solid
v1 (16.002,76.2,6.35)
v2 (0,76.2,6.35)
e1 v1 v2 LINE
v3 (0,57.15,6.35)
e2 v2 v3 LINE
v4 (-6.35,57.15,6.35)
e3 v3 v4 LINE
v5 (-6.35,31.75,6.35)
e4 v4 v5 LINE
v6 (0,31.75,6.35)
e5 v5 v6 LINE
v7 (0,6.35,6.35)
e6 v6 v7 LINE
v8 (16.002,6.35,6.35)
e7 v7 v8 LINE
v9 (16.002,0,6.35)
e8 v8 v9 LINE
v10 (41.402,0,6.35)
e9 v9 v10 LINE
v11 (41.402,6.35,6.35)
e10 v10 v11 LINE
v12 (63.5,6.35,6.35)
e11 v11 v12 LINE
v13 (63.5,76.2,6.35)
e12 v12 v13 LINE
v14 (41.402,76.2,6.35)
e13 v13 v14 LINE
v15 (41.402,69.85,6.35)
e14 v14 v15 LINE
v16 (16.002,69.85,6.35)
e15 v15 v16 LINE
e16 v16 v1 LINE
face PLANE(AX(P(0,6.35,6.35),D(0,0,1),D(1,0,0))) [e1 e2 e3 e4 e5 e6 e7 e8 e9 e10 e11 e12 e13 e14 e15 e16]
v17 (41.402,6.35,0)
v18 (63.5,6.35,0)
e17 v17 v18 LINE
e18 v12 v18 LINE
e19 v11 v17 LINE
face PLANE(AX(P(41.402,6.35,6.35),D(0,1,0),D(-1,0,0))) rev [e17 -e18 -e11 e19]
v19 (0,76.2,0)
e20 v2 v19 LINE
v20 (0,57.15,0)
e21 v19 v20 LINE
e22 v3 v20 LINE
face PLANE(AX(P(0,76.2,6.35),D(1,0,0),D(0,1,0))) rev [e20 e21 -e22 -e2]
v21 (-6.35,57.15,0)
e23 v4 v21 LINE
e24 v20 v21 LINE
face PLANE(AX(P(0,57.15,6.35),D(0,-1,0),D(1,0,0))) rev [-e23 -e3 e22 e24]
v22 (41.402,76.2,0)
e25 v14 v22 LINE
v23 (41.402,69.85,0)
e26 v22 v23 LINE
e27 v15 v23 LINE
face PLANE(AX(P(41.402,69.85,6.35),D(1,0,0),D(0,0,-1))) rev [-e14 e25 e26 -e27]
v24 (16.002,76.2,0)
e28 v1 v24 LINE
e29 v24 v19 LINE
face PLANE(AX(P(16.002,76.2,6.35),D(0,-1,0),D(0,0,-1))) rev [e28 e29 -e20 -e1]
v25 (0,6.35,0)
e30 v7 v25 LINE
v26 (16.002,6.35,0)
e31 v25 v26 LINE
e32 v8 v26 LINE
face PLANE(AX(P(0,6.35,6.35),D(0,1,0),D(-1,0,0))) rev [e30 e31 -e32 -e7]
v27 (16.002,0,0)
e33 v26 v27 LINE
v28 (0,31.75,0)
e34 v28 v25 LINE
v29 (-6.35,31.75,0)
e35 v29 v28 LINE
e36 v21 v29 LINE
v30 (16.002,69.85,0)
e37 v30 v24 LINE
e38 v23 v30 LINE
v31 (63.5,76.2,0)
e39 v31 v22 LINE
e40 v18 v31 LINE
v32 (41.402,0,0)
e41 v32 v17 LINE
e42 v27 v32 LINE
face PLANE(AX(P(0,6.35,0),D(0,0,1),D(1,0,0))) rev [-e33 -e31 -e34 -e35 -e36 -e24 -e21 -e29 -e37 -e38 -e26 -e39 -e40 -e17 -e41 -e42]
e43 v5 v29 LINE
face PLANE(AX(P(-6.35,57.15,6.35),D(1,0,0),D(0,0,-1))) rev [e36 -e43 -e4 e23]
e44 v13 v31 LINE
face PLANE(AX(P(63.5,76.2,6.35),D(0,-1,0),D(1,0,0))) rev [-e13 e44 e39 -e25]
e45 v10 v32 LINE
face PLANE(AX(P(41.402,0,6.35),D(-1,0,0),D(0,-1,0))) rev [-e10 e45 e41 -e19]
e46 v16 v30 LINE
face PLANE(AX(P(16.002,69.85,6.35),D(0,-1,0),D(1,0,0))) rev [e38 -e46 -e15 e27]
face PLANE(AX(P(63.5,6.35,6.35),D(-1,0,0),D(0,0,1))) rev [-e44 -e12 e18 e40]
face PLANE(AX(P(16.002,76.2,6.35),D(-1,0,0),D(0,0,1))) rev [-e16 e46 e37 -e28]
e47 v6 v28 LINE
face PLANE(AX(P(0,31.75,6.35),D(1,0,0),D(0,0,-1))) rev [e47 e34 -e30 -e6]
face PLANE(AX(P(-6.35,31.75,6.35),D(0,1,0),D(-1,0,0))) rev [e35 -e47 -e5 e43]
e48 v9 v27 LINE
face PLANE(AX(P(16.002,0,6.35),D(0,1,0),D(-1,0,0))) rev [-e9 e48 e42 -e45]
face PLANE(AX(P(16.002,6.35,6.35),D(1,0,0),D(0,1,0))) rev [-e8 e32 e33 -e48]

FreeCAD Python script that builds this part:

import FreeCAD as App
import Part
import Sketcher
Q = App.Units.Quantity

doc = App.newDocument("Part")
body = doc.addObject("PartDesign::Body", "Body")

sketch1 = body.newObject("Sketcher::SketchObject", "Sketch")
sketch1.AttachmentSupport = (doc.getObject("XY_Plane"), [""])
sketch1.MapMode = "FlatFace"
sketch1.addGeometry(Part.LineSegment(App.Vector(0, 6, 0), App.Vector(16, 6, 0)), False)
sketch1.addGeometry(Part.LineSegment(App.Vector(16, 6, 0), App.Vector(16, 0, 0)), False)
sketch1.addGeometry(Part.LineSegment(App.Vector(16, 0, 0), App.Vector(41, 0, 0)), False)
sketch1.addGeometry(Part.LineSegment(App.Vector(41, 0, 0), App.Vector(41, 6, 0)), False)
sketch1.addGeometry(Part.LineSegment(App.Vector(41, 6, 0), App.Vector(64, 6, 0)), False)
sketch1.addGeometry(Part.LineSegment(App.Vector(64, 6, 0), App.Vector(64, 76, 0)), False)
sketch1.addGeometry(Part.LineSegment(App.Vector(64, 76, 0), App.Vector(41, 76, 0)), False)
sketch1.addGeometry(Part.LineSegment(App.Vector(41, 76, 0), App.Vector(41, 70, 0)), False)
sketch1.addGeometry(Part.LineSegment(App.Vector(41, 70, 0), App.Vector(16, 70, 0)), False)
sketch1.addGeometry(Part.LineSegment(App.Vector(16, 70, 0), App.Vector(16, 76, 0)), False)
sketch1.addGeometry(Part.LineSegment(App.Vector(16, 76, 0), App.Vector(0, 76, 0)), False)
sketch1.addGeometry(Part.LineSegment(App.Vector(0, 76, 0), App.Vector(0, 57, 0)), False)
sketch1.addGeometry(Part.LineSegment(App.Vector(0, 57, 0), App.Vector(-6, 57, 0)), False)
sketch1.addGeometry(Part.LineSegment(App.Vector(-6, 57, 0), App.Vector(-6, 32, 0)), False)
sketch1.addGeometry(Part.LineSegment(App.Vector(-6, 32, 0), App.Vector(0, 32, 0)), False)
sketch1.addGeometry(Part.LineSegment(App.Vector(0, 32, 0), App.Vector(0, 6, 0)), False)
sketch1.addConstraint(Sketcher.Constraint("Coincident", 0, 2, 1, 1))
sketch1.addConstraint(Sketcher.Constraint("Coincident", 1, 2, 2, 1))
sketch1.addConstraint(Sketcher.Constraint("Coincident", 2, 2, 3, 1))
sketch1.addConstraint(Sketcher.Constraint("Coincident", 3, 2, 4, 1))
sketch1.addConstraint(Sketcher.Constraint("Coincident", 4, 2, 5, 1))
sketch1.addConstraint(Sketcher.Constraint("Coincident", 5, 2, 6, 1))
sketch1.addConstraint(Sketcher.Constraint("Coincident", 6, 2, 7, 1))
sketch1.addConstraint(Sketcher.Constraint("Coincident", 7, 2, 8, 1))
sketch1.addConstraint(Sketcher.Constraint("Coincident", 8, 2, 9, 1))
sketch1.addConstraint(Sketcher.Constraint("Coincident", 9, 2, 10, 1))
sketch1.addConstraint(Sketcher.Constraint("Coincident", 10, 2, 11, 1))
sketch1.addConstraint(Sketcher.Constraint("Coincident", 11, 2, 12, 1))
sketch1.addConstraint(Sketcher.Constraint("Coincident", 12, 2, 13, 1))
sketch1.addConstraint(Sketcher.Constraint("Coincident", 13, 2, 14, 1))
sketch1.addConstraint(Sketcher.Constraint("Coincident", 14, 2, 15, 1))
sketch1.addConstraint(Sketcher.Constraint("Coincident", 15, 2, 0, 1))
sketch1.addConstraint(Sketcher.Constraint("Horizontal", 0))
sketch1.addConstraint(Sketcher.Constraint("Vertical", 1))
sketch1.addConstraint(Sketcher.Constraint("Horizontal", 2))
sketch1.addConstraint(Sketcher.Constraint("Vertical", 3))
sketch1.addConstraint(Sketcher.Constraint("Horizontal", 4))
sketch1.addConstraint(Sketcher.Constraint("Vertical", 5))
sketch1.addConstraint(Sketcher.Constraint("Horizontal", 6))
sketch1.addConstraint(Sketcher.Constraint("Vertical", 7))
sketch1.addConstraint(Sketcher.Constraint("Horizontal", 8))
sketch1.addConstraint(Sketcher.Constraint("Vertical", 9))
sketch1.addConstraint(Sketcher.Constraint("Horizontal", 10))
sketch1.addConstraint(Sketcher.Constraint("Vertical", 11))
sketch1.addConstraint(Sketcher.Constraint("Horizontal", 12))
sketch1.addConstraint(Sketcher.Constraint("Vertical", 13))
sketch1.addConstraint(Sketcher.Constraint("Horizontal", 14))
sketch1.addConstraint(Sketcher.Constraint("Vertical", 15))
sketch1.addConstraint(Sketcher.Constraint("PointOnObject", 1, 2, -1))
sketch1.addConstraint(Sketcher.Constraint("PointOnObject", 10, 2, -2))
sketch1.addConstraint(Sketcher.Constraint("PointOnObject", 14, 2, -2))
sketch1.addConstraint(Sketcher.Constraint("Horizontal", 0, 2, 3, 2))
sketch1.addConstraint(Sketcher.Constraint("Horizontal", 6, 2, 9, 2))
sketch1.addConstraint(Sketcher.Constraint("Vertical", 3, 2, 6, 2))
sketch1.addConstraint(Sketcher.Constraint("Vertical", 1, 2, 8, 2))
sketch1.addConstraint(Sketcher.Constraint("Equal", 14, 1))
sketch1.addConstraint(Sketcher.Constraint("Equal", 3, 7))
sketch1.addConstraint(Sketcher.Constraint("Equal", 8, 13))
sketch1.addConstraint(Sketcher.Constraint("Equal", 13, 15))
sketch1.addConstraint(Sketcher.Constraint("DistanceX", 2, 1, 2, 2, Q("1 in")))
sketch1.addConstraint(Sketcher.Constraint("DistanceY", -1, 1, 5, 2, Q("3 in")))
sketch1.addConstraint(Sketcher.Constraint("DistanceX", 0, 1, 0, 2, Q("0.63 in")))
sketch1.addConstraint(Sketcher.Constraint("DistanceX", 4, 1, 4, 2, Q("0.87 in")))
sketch1.addConstraint(Sketcher.Constraint("DistanceX", 12, 2, 12, 1, Q("0.25 in")))
pad1 = body.newObject("PartDesign::Pad", "Pad")
pad1.Profile = sketch1
pad1.Length = Q("0.25 in")

doc.recompute()
